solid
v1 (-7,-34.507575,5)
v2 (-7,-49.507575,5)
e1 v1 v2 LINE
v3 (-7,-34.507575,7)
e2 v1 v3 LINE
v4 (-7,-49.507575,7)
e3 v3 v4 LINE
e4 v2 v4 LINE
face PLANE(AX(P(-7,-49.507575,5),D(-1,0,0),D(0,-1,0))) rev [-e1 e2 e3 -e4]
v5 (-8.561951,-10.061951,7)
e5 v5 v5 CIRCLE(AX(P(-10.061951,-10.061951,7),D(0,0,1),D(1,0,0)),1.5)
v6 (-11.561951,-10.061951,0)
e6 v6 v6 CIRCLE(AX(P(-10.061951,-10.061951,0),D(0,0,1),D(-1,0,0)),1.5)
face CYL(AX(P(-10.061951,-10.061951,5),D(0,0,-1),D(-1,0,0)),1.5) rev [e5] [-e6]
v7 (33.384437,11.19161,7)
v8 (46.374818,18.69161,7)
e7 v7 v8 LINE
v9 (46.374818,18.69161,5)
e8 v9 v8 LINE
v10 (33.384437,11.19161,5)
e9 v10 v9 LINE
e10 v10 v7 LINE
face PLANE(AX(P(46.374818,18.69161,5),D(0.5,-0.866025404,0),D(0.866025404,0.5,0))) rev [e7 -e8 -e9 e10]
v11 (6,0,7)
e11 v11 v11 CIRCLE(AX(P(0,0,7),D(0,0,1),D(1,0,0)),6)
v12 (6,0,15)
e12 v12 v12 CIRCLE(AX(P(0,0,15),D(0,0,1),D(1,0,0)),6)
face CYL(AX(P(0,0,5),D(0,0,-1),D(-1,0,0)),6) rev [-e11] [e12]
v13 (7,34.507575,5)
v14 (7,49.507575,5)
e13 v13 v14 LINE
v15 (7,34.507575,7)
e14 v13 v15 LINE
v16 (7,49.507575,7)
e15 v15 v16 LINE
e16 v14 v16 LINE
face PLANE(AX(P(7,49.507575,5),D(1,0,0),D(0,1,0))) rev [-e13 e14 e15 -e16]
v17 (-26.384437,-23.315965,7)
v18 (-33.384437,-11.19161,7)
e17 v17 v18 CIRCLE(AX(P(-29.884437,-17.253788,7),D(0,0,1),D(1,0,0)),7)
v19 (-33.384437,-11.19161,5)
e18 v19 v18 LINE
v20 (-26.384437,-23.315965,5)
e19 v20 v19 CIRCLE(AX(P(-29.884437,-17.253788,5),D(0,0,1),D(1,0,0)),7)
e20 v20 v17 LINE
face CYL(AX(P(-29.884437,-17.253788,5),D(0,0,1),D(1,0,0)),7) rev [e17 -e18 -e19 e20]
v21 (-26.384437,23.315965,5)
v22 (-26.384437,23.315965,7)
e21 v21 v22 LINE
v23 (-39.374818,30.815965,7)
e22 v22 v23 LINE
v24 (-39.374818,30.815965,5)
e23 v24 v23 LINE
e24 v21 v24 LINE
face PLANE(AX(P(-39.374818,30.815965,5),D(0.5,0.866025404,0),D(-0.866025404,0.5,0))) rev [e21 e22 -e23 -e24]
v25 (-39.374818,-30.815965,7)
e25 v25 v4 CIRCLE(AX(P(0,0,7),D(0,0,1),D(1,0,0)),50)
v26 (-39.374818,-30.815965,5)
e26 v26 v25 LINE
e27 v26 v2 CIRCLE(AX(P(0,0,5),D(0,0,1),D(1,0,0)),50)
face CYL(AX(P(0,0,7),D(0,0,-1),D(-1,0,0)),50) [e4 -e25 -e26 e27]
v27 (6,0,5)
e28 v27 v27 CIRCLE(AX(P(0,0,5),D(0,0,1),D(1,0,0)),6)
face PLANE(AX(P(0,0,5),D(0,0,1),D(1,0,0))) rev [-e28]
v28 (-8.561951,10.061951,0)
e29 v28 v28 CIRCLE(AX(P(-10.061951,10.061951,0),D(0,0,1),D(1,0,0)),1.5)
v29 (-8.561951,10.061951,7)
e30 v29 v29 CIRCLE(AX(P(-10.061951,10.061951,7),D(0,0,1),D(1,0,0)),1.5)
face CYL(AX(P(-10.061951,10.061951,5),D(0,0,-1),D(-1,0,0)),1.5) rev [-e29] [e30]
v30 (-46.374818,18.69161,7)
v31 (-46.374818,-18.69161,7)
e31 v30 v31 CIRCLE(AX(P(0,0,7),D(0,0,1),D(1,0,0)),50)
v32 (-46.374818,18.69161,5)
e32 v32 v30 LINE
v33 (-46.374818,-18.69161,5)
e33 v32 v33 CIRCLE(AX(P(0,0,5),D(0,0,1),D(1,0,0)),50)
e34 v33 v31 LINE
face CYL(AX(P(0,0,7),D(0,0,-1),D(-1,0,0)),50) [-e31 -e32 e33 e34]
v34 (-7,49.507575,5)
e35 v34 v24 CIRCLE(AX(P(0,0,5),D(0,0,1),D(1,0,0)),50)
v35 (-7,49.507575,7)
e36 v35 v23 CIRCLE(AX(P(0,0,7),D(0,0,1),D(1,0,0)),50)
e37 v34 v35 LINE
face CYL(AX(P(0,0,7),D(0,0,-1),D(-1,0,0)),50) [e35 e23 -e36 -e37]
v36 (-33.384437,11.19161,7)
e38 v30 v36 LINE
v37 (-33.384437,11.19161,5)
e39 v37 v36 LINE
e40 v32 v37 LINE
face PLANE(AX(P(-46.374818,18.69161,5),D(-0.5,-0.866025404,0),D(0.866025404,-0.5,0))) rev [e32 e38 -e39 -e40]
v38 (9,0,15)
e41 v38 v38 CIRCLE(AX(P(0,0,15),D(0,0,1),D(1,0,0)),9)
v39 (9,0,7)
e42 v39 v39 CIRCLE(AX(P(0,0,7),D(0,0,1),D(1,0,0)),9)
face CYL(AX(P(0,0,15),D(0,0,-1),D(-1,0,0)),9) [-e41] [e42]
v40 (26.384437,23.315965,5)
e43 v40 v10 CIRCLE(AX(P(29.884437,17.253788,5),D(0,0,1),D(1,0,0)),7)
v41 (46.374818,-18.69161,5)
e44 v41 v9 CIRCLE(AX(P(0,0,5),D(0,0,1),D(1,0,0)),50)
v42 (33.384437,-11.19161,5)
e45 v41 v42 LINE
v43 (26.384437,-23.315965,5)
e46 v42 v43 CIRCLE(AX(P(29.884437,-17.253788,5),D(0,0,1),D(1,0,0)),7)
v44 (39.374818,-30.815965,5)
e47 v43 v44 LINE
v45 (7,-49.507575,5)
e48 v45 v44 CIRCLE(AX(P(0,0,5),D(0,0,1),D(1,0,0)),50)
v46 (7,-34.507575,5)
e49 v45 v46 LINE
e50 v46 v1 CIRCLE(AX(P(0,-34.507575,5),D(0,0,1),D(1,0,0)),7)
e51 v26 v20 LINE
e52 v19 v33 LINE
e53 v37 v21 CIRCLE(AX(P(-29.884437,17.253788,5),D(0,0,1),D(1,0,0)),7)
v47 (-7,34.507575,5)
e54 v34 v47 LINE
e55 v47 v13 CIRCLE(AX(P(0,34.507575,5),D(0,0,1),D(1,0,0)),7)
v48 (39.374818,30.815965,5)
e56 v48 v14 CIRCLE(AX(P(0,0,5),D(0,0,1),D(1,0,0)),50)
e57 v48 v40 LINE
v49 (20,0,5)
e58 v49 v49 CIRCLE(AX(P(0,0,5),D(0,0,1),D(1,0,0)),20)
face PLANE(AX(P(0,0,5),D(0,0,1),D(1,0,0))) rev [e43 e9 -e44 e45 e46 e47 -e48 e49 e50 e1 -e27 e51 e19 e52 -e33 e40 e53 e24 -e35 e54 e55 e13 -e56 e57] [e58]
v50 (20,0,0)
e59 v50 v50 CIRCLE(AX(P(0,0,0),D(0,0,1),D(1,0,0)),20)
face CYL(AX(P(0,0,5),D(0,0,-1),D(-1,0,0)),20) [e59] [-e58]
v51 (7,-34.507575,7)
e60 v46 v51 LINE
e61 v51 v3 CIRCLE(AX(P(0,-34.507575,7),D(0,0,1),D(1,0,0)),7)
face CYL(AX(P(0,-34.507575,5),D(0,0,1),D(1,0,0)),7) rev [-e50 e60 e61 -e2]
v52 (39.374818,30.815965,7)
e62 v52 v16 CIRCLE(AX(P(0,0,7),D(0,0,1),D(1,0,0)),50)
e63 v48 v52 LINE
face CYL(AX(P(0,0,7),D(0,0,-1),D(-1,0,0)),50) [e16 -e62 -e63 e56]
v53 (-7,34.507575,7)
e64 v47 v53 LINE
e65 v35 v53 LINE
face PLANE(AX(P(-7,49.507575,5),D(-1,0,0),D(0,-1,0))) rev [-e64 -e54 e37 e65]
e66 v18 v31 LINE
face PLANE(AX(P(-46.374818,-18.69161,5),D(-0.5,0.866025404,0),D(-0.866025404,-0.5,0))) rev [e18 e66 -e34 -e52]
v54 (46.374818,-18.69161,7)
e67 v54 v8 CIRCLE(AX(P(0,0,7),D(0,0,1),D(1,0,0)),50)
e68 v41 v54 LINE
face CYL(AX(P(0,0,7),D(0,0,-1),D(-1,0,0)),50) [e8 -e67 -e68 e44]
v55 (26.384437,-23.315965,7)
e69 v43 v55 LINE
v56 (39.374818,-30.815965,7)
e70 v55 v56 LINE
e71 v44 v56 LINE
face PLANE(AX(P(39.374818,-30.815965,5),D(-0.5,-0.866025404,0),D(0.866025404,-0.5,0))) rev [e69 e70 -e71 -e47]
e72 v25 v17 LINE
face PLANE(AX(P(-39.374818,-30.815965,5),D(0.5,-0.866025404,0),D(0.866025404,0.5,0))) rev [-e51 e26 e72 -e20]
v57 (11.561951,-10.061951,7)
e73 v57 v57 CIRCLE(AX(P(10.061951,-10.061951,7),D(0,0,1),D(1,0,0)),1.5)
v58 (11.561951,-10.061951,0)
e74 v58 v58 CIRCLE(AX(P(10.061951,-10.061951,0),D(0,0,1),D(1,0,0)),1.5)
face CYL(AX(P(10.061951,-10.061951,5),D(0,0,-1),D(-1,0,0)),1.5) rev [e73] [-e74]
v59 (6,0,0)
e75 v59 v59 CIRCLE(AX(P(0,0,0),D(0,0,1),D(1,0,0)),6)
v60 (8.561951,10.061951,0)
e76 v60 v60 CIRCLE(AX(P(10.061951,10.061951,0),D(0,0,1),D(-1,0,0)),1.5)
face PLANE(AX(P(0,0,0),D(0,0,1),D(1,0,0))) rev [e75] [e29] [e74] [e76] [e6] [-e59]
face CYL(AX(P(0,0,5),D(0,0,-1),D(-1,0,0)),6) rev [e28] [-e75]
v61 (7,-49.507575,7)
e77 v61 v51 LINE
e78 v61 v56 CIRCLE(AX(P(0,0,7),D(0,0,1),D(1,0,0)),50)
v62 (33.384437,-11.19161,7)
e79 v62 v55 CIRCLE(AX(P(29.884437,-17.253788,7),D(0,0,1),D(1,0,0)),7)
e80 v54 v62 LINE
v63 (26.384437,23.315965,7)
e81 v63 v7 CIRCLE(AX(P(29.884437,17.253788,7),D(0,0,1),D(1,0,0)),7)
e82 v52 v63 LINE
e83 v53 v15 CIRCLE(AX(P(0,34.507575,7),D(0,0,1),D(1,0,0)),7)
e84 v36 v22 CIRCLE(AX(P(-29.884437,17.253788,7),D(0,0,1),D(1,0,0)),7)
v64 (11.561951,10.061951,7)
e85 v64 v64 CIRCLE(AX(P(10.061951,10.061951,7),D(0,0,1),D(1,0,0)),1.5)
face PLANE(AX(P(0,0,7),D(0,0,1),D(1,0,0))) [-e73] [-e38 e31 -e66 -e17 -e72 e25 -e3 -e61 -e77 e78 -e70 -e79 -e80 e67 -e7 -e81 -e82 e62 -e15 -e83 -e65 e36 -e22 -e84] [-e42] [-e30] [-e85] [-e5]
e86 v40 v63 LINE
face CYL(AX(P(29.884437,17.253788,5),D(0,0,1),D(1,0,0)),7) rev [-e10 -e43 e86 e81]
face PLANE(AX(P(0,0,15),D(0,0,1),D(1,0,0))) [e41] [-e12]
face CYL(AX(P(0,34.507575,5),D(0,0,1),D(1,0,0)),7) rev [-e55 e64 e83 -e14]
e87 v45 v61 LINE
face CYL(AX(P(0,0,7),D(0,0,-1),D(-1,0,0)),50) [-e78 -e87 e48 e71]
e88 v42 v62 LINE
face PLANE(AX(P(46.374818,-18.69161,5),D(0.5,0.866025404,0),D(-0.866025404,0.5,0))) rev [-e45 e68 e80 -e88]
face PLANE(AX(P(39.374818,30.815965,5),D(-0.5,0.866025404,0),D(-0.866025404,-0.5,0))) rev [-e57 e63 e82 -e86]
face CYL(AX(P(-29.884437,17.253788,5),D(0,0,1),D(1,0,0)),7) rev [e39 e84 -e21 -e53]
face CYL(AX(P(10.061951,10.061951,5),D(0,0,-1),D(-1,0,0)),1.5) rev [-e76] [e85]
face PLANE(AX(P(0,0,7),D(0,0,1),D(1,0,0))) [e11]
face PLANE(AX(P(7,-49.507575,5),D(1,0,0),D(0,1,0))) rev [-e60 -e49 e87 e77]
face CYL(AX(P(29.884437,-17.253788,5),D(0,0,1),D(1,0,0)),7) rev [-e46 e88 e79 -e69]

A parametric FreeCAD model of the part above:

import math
import FreeCAD as App
import Part
import Sketcher
from FreeCAD import Vector
Q = App.Units.Quantity

doc = App.newDocument("Part")
params = doc.addObject("Spreadsheet::Sheet", "Params")
for row, (alias, value) in enumerate([
    ("sketch1_diameter", "40 mm"),
    ("sketch1_diameter2", "3 mm"),
    ("sketch1_diameter3", "12 mm"),
    ("pad1_length", "5 mm"),
    ("sketch2_diameter", "18 mm"),
    ("sketch2_diameter2", "12 mm"),
    ("pad2_length", "10 mm"),
    ("sketch3_diameter", "100 mm"),
    ("pad3_length", "2 mm"),
    ("sketch4_radius", "7 mm"),
    ("sketch4_radius2", "50 mm"),
    ("sketch4_height", "15 mm"),
    ("sketch4_length", "15 mm"),
    ("pocket1_length", "2 mm"),
    ("sketch5_diameter", "3 mm"),
], start=1):
    params.set(f"A{row}", alias)
    params.set(f"B{row}", "=" + value)
    params.setAlias(f"B{row}", alias)

body = doc.addObject("PartDesign::Body", "Body")

# Sketch on XY plane
sketch1 = body.newObject("Sketcher::SketchObject", "Sketch")
sketch1.AttachmentSupport = (doc.getObject("XY_Plane"), [""])
sketch1.MapMode = "FlatFace"
sketch1.addGeometry(Part.Circle(Vector(0, 0, 0), Vector(0, 0, 1), 20), False)
sketch1.addGeometry(Part.Circle(Vector(-10.1, -10.1, 0), Vector(0, 0, 1), 1.5), False)
sketch1.addGeometry(Part.Circle(Vector(10.1, -10.1, 0), Vector(0, 0, 1), 1.5), False)
sketch1.addGeometry(Part.Circle(Vector(0, 0, 0), Vector(0, 0, 1), 6), False)
sketch1.addGeometry(Part.Circle(Vector(-10.1, 10.1, 0), Vector(0, 0, 1), 1.5), False)
sketch1.addGeometry(Part.Circle(Vector(10.1, 10.1, 0), Vector(0, 0, 1), 1.5), False)
sketch1.addConstraint(Sketcher.Constraint("Coincident", 0, 3, -1, 1))
sketch1.addConstraint(Sketcher.Constraint("Coincident", 3, 3, -1, 1))
sketch1.addConstraint(Sketcher.Constraint("Equal", 1, 2))
sketch1.addConstraint(Sketcher.Constraint("Equal", 2, 4))
sketch1.addConstraint(Sketcher.Constraint("Equal", 4, 5))
sketch1.addConstraint(Sketcher.Constraint("Symmetric", 2, 3, 4, 3, -1, 1))
sketch1.addConstraint(Sketcher.Constraint("Symmetric", 1, 3, 5, 3, -1, 1))
sketch1.addConstraint(Sketcher.Constraint("Symmetric", 1, 3, 2, 3, -2))
sketch1.addConstraint(Sketcher.Constraint("Diameter", 0, 40.0))
sketch1.addConstraint(Sketcher.Constraint("Diameter", 1, 3.0))
sketch1.addConstraint(Sketcher.Constraint("Diameter", 3, 12.0))
sketch1.addConstraint(Sketcher.Constraint("DistanceX", 1, 3, -1, 1, 10.061951))
sketch1.addConstraint(Sketcher.Constraint("DistanceY", 1, 3, -1, 1, 10.061951))
sketch1.setExpression("Constraints[8]", "Params.sketch1_diameter")
sketch1.setExpression("Constraints[9]", "Params.sketch1_diameter2")
sketch1.setExpression("Constraints[10]", "Params.sketch1_diameter3")
pad1 = body.newObject("PartDesign::Pad", "Pad")
pad1.Profile = sketch1
pad1.setExpression("Length", "Params.pad1_length")

# Sketch on XY plane
sketch2 = body.newObject("Sketcher::SketchObject", "Sketch001")
sketch2.AttachmentSupport = (doc.getObject("XY_Plane"), [""])
sketch2.MapMode = "FlatFace"
sketch2.AttachmentOffset = App.Placement(Vector(0, 0, 5), App.Rotation())
sketch2.addGeometry(Part.Circle(Vector(0, 0, 0), Vector(0, 0, 1), 9), False)
sketch2.addGeometry(Part.Circle(Vector(0, 0, 0), Vector(0, 0, 1), 6), False)
sketch2.addConstraint(Sketcher.Constraint("Coincident", 0, 3, -1, 1))
sketch2.addConstraint(Sketcher.Constraint("Coincident", 1, 3, -1, 1))
sketch2.addConstraint(Sketcher.Constraint("Diameter", 0, 18.0))
sketch2.addConstraint(Sketcher.Constraint("Diameter", 1, 12.0))
sketch2.setExpression("Constraints[2]", "Params.sketch2_diameter")
sketch2.setExpression("Constraints[3]", "Params.sketch2_diameter2")
pad2 = body.newObject("PartDesign::Pad", "Pad001")
pad2.Profile = sketch2
pad2.setExpression("Length", "Params.pad2_length")

# Sketch on XY plane
sketch3 = body.newObject("Sketcher::SketchObject", "Sketch002")
sketch3.AttachmentSupport = (doc.getObject("XY_Plane"), [""])
sketch3.MapMode = "FlatFace"
sketch3.AttachmentOffset = App.Placement(Vector(0, 0, 5), App.Rotation())
sketch3.addGeometry(Part.Circle(Vector(0, 0, 0), Vector(0, 0, 1), 50), False)
sketch3.addConstraint(Sketcher.Constraint("Coincident", 0, 3, -1, 1))
sketch3.addConstraint(Sketcher.Constraint("Diameter", 0, 100.0))
sketch3.setExpression("Constraints[1]", "Params.sketch3_diameter")
pad3 = body.newObject("PartDesign::Pad", "Pad002")
pad3.Profile = sketch3
pad3.setExpression("Length", "Params.pad3_length")

# Sketch on XY plane
sketch4 = body.newObject("Sketcher::SketchObject", "Sketch003")
sketch4.AttachmentSupport = (doc.getObject("XY_Plane"), [""])
sketch4.MapMode = "FlatFace"
sketch4.AttachmentOffset = App.Placement(Vector(0, 0, 5), App.Rotation())
sketch4.addGeometry(Part.LineSegment(Vector(-7, 50, 0), Vector(-7, 35, 0)), False)
sketch4.addGeometry(Part.ArcOfCircle(Part.Circle(Vector(0, 35, 0), Vector(0, 0, 1), 7), math.radians(180), math.radians(360)), False)
sketch4.addGeometry(Part.LineSegment(Vector(7, 35, 0), Vector(7, 50, 0)), False)
sketch4.addGeometry(Part.ArcOfCircle(Part.Circle(Vector(0, 0, 0), Vector(0, 0, 1), 50), math.radians(81.95), math.radians(98.05)), False)
sketch4.addGeometry(Part.LineSegment(Vector(39, 31, 0), Vector(26, 23, 0)), False)
sketch4.addGeometry(Part.ArcOfCircle(Part.Circle(Vector(30, 17, 0), Vector(0, 0, 1), 7), math.radians(120), math.radians(300)), False)
sketch4.addGeometry(Part.LineSegment(Vector(33, 11, 0), Vector(46, 19, 0)), False)
sketch4.addGeometry(Part.ArcOfCircle(Part.Circle(Vector(0, 0, 0), Vector(0, 0, 1), 50), math.radians(21.95), math.radians(38.05)), False)
sketch4.addGeometry(Part.LineSegment(Vector(46, -19, 0), Vector(33, -11, 0)), False)
sketch4.addGeometry(Part.ArcOfCircle(Part.Circle(Vector(30, -17, 0), Vector(0, 0, 1), 7), math.radians(60), math.radians(240)), False)
sketch4.addGeometry(Part.LineSegment(Vector(26, -23, 0), Vector(39, -31, 0)), False)
sketch4.addGeometry(Part.ArcOfCircle(Part.Circle(Vector(0, 0, 0), Vector(0, 0, 1), 50), math.radians(-38.05), math.radians(-21.95)), False)
sketch4.addGeometry(Part.LineSegment(Vector(7, -50, 0), Vector(7, -35, 0)), False)
sketch4.addGeometry(Part.ArcOfCircle(Part.Circle(Vector(0, -35, 0), Vector(0, 0, 1), 7), math.radians(0), math.radians(180)), False)
sketch4.addGeometry(Part.LineSegment(Vector(-7, -35, 0), Vector(-7, -50, 0)), False)
sketch4.addGeometry(Part.ArcOfCircle(Part.Circle(Vector(0, 0, 0), Vector(0, 0, 1), 50), math.radians(-98.05), math.radians(-81.95)), False)
sketch4.addGeometry(Part.LineSegment(Vector(-39, -31, 0), Vector(-26, -23, 0)), False)
sketch4.addGeometry(Part.ArcOfCircle(Part.Circle(Vector(-30, -17, 0), Vector(0, 0, 1), 7), math.radians(-60), math.radians(120)), False)
sketch4.addGeometry(Part.LineSegment(Vector(-33, -11, 0), Vector(-46, -19, 0)), False)
sketch4.addGeometry(Part.ArcOfCircle(Part.Circle(Vector(0, 0, 0), Vector(0, 0, 1), 50), math.radians(-158.05), math.radians(-141.95)), False)
sketch4.addGeometry(Part.LineSegment(Vector(-46, 19, 0), Vector(-33, 11, 0)), False)
sketch4.addGeometry(Part.ArcOfCircle(Part.Circle(Vector(-30, 17, 0), Vector(0, 0, 1), 7), math.radians(-120), math.radians(60)), False)
sketch4.addGeometry(Part.LineSegment(Vector(-26, 23, 0), Vector(-39, 31, 0)), False)
sketch4.addGeometry(Part.ArcOfCircle(Part.Circle(Vector(0, 0, 0), Vector(0, 0, 1), 50), math.radians(141.95), math.radians(158.05)), False)
sketch4.addConstraint(Sketcher.Constraint("Tangent", 0, 2, 1, 1))
sketch4.addConstraint(Sketcher.Constraint("Tangent", 1, 2, 2, 1))
sketch4.addConstraint(Sketcher.Constraint("Coincident", 2, 2, 3, 1))
sketch4.addConstraint(Sketcher.Constraint("Coincident", 3, 2, 0, 1))
sketch4.addConstraint(Sketcher.Constraint("Tangent", 4, 2, 5, 1))
sketch4.addConstraint(Sketcher.Constraint("Tangent", 5, 2, 6, 1))
sketch4.addConstraint(Sketcher.Constraint("Coincident", 6, 2, 7, 1))
sketch4.addConstraint(Sketcher.Constraint("Coincident", 7, 2, 4, 1))
sketch4.addConstraint(Sketcher.Constraint("Tangent", 8, 2, 9, 1))
sketch4.addConstraint(Sketcher.Constraint("Tangent", 9, 2, 10, 1))
sketch4.addConstraint(Sketcher.Constraint("Coincident", 10, 2, 11, 1))
sketch4.addConstraint(Sketcher.Constraint("Coincident", 11, 2, 8, 1))
sketch4.addConstraint(Sketcher.Constraint("Tangent", 12, 2, 13, 1))
sketch4.addConstraint(Sketcher.Constraint("Tangent", 13, 2, 14, 1))
sketch4.addConstraint(Sketcher.Constraint("Coincident", 14, 2, 15, 1))
sketch4.addConstraint(Sketcher.Constraint("Coincident", 15, 2, 12, 1))
sketch4.addConstraint(Sketcher.Constraint("Tangent", 16, 2, 17, 1))
sketch4.addConstraint(Sketcher.Constraint("Tangent", 17, 2, 18, 1))
sketch4.addConstraint(Sketcher.Constraint("Coincident", 18, 2, 19, 1))
sketch4.addConstraint(Sketcher.Constraint("Coincident", 19, 2, 16, 1))
sketch4.addConstraint(Sketcher.Constraint("Tangent", 20, 2, 21, 1))
sketch4.addConstraint(Sketcher.Constraint("Tangent", 21, 2, 22, 1))
sketch4.addConstraint(Sketcher.Constraint("Coincident", 22, 2, 23, 1))
sketch4.addConstraint(Sketcher.Constraint("Coincident", 23, 2, 20, 1))
sketch4.addConstraint(Sketcher.Constraint("Vertical", 0))
sketch4.addConstraint(Sketcher.Constraint("Vertical", 2))
sketch4.addConstraint(Sketcher.Constraint("Vertical", 12))
sketch4.addConstraint(Sketcher.Constraint("Vertical", 14))
sketch4.addConstraint(Sketcher.Constraint("Coincident", 3, 3, -1, 1))
sketch4.addConstraint(Sketcher.Constraint("Coincident", 7, 3, -1, 1))
sketch4.addConstraint(Sketcher.Constraint("Coincident", 11, 3, -1, 1))
sketch4.addConstraint(Sketcher.Constraint("Coincident", 15, 3, -1, 1))
sketch4.addConstraint(Sketcher.Constraint("Coincident", 19, 3, -1, 1))
sketch4.addConstraint(Sketcher.Constraint("Coincident", 23, 3, -1, 1))
sketch4.addConstraint(Sketcher.Constraint("Equal", 1, 5))
sketch4.addConstraint(Sketcher.Constraint("Equal", 3, 7))
sketch4.addConstraint(Sketcher.Constraint("Equal", 5, 9))
sketch4.addConstraint(Sketcher.Constraint("Equal", 7, 11))
sketch4.addConstraint(Sketcher.Constraint("Equal", 9, 13))
sketch4.addConstraint(Sketcher.Constraint("Equal", 11, 15))
sketch4.addConstraint(Sketcher.Constraint("Equal", 13, 17))
sketch4.addConstraint(Sketcher.Constraint("Equal", 15, 19))
sketch4.addConstraint(Sketcher.Constraint("Equal", 17, 21))
sketch4.addConstraint(Sketcher.Constraint("Equal", 19, 23))
sketch4.addConstraint(Sketcher.Constraint("Symmetric", 1, 3, 13, 3, -1, 1))
sketch4.addConstraint(Sketcher.Constraint("Symmetric", 5, 3, 17, 3, -1, 1))
sketch4.addConstraint(Sketcher.Constraint("Symmetric", 9, 3, 21, 3, -1, 1))
sketch4.addConstraint(Sketcher.Constraint("Symmetric", 9, 3, 17, 3, -2))
sketch4.addConstraint(Sketcher.Constraint("PointOnObject", 1, 3, -2))
sketch4.addConstraint(Sketcher.Constraint("Parallel", 4, 6))
sketch4.addConstraint(Sketcher.Constraint("Parallel", 8, 10))
sketch4.addConstraint(Sketcher.Constraint("Parallel", 6, 16))
sketch4.addConstraint(Sketcher.Constraint("Parallel", 16, 18))
sketch4.addConstraint(Sketcher.Constraint("Parallel", 10, 20))
sketch4.addConstraint(Sketcher.Constraint("Parallel", 20, 22))
sketch4.addConstraint(Sketcher.Constraint("Horizontal", 9, 2, 16, 2))
sketch4.addConstraint(Sketcher.Constraint("Equal", 4, 6))
sketch4.addConstraint(Sketcher.Constraint("Radius", 1, 7.0))
sketch4.addConstraint(Sketcher.Constraint("Radius", 3, 50.0))
sketch4.addConstraint(Sketcher.Constraint("DistanceY", 0, 2, 0, 1, 15.0))
sketch4.addConstraint(Sketcher.Constraint("Angle", 4, Q("-150 deg")))
sketch4.addConstraint(Sketcher.Constraint("Distance", 4, 15.0))
sketch4.setExpression("Constraints[57]", "Params.sketch4_radius")
sketch4.setExpression("Constraints[58]", "Params.sketch4_radius2")
sketch4.setExpression("Constraints[59]", "Params.sketch4_height")
sketch4.setExpression("Constraints[61]", "Params.sketch4_length")
pocket1 = body.newObject("PartDesign::Pocket", "Pocket")
pocket1.Profile = sketch4
pocket1.setExpression("Length", "Params.pocket1_length")
pocket1.Reversed = True

# Sketch on XY plane
sketch5 = body.newObject("Sketcher::SketchObject", "Sketch004")
sketch5.AttachmentSupport = (doc.getObject("XY_Plane"), [""])
sketch5.MapMode = "FlatFace"
sketch5.addGeometry(Part.Circle(Vector(10.1, 10.1, 0), Vector(0, 0, 1), 1.5), False)
sketch5.addGeometry(Part.Circle(Vector(10.1, -10.1, 0), Vector(0, 0, 1), 1.5), False)
sketch5.addGeometry(Part.Circle(Vector(-10.1, 10.1, 0), Vector(0, 0, 1), 1.5), False)
sketch5.addGeometry(Part.Circle(Vector(-10.1, -10.1, 0), Vector(0, 0, 1), 1.5), False)
sketch5.addConstraint(Sketcher.Constraint("Equal", 0, 1))
sketch5.addConstraint(Sketcher.Constraint("Equal", 1, 2))
sketch5.addConstraint(Sketcher.Constraint("Equal", 2, 3))
sketch5.addConstraint(Sketcher.Constraint("Symmetric", 1, 3, 2, 3, -1, 1))
sketch5.addConstraint(Sketcher.Constraint("Symmetric", 0, 3, 3, 3, -1, 1))
sketch5.addConstraint(Sketcher.Constraint("Symmetric", 0, 3, 2, 3, -2))
sketch5.addConstraint(Sketcher.Constraint("Diameter", 0, 3.0))
sketch5.addConstraint(Sketcher.Constraint("DistanceX", -1, 1, 0, 3, 10.061951))
sketch5.addConstraint(Sketcher.Constraint("DistanceY", -1, 1, 0, 3, 10.061951))
sketch5.setExpression("Constraints[6]", "Params.sketch5_diameter")
pocket2 = body.newObject("PartDesign::Pocket", "Pocket001")
pocket2.Profile = sketch5
pocket2.Type = "ThroughAll"
pocket2.Midplane = True

doc.recompute()
